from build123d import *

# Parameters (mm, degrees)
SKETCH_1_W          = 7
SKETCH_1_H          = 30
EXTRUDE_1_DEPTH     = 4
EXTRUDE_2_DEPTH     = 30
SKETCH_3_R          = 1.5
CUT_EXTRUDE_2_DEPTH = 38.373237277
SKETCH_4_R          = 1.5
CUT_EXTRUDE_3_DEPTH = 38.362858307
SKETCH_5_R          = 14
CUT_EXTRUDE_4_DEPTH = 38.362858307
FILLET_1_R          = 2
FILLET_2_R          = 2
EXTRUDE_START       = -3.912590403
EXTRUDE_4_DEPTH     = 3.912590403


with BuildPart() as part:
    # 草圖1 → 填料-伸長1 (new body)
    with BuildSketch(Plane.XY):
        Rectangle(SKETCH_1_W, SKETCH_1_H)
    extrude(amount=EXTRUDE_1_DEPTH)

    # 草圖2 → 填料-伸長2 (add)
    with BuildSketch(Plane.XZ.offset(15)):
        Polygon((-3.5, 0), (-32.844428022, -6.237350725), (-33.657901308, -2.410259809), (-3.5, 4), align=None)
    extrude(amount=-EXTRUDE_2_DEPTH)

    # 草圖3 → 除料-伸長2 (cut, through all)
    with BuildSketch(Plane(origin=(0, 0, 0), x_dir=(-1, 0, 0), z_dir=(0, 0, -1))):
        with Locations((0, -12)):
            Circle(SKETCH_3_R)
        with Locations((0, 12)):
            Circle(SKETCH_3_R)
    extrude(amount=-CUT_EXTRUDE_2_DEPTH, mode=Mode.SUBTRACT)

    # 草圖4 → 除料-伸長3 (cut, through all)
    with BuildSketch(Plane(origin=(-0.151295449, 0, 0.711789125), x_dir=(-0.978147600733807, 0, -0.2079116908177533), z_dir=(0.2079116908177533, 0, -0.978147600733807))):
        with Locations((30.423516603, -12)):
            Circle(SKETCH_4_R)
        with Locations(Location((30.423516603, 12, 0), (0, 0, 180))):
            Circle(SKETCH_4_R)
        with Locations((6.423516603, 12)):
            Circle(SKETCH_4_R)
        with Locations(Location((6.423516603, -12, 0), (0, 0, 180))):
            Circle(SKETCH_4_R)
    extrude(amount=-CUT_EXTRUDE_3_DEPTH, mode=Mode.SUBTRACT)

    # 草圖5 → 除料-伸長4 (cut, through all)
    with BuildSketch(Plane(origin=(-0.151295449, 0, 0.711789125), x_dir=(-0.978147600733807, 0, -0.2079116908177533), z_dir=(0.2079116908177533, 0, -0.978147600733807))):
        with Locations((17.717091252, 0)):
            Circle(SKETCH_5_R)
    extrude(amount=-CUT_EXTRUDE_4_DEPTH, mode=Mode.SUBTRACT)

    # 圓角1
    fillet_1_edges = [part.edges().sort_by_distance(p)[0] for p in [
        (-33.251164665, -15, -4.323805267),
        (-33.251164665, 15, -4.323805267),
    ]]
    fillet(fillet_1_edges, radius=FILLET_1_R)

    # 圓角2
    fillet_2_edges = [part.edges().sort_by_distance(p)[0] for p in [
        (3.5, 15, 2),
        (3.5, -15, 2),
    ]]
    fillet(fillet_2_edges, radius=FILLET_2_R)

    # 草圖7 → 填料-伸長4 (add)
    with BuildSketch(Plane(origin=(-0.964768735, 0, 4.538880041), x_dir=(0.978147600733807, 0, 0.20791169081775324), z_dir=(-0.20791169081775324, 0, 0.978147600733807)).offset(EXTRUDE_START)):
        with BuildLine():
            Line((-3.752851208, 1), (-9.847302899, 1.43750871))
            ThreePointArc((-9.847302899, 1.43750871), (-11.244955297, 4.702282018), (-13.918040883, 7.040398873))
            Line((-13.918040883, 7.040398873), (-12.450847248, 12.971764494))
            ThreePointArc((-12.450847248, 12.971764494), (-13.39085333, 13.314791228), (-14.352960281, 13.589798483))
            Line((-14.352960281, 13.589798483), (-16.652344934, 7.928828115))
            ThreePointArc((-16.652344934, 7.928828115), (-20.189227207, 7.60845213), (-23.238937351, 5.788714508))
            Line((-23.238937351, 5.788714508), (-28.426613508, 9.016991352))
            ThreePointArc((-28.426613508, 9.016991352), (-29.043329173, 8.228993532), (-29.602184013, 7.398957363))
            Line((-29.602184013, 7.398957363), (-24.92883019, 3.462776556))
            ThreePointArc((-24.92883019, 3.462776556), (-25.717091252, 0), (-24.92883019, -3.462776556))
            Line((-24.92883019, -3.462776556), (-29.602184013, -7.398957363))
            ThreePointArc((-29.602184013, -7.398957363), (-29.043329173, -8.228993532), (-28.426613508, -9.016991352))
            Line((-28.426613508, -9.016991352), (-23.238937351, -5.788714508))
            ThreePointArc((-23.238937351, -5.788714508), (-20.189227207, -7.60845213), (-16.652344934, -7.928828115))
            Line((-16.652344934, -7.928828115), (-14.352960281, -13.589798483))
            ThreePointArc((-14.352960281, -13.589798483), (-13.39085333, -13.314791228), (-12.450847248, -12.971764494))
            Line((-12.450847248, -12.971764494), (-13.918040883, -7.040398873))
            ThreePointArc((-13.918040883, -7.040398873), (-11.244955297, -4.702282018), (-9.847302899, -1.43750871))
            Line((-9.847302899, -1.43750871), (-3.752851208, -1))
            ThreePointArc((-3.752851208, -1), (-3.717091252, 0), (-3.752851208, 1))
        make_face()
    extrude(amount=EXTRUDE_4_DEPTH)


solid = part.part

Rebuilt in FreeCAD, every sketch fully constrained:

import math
import FreeCAD as App
import Part
import Sketcher
from FreeCAD import Vector
Q = App.Units.Quantity


def edges_at(feature, points):
    """Names of the edges that pass closest to the given points."""
    edges = feature.Shape.Edges
    near = lambda p: min(range(len(edges)), key=lambda i: edges[i].distToShape(Part.Vertex(*p))[0])
    return sorted({f"Edge{near(p) + 1}" for p in points})

doc = App.newDocument("Part")
body = doc.addObject("PartDesign::Body", "Body")

# Sketch on XY plane
sketch1 = body.newObject("Sketcher::SketchObject", "Sketch")
sketch1.AttachmentSupport = (doc.getObject("XY_Plane"), [""])
sketch1.MapMode = "FlatFace"
sketch1.addGeometry([
    Part.LineSegment(Vector(-4, 15, 0), Vector(-4, -15, 0)),
    Part.LineSegment(Vector(-4, -15, 0), Vector(4, -15, 0)),
    Part.LineSegment(Vector(4, -15, 0), Vector(4, 15, 0)),
    Part.LineSegment(Vector(4, 15, 0), Vector(-4, 15, 0)),
], False)
sketch1.addConstraint([
    Sketcher.Constraint("Coincident", 0, 2, 1, 1),
    Sketcher.Constraint("Coincident", 1, 2, 2, 1),
    Sketcher.Constraint("Coincident", 2, 2, 3, 1),
    Sketcher.Constraint("Coincident", 3, 2, 0, 1),
    Sketcher.Constraint("Vertical", 0),
    Sketcher.Constraint("Horizontal", 1),
    Sketcher.Constraint("Vertical", 2),
    Sketcher.Constraint("Horizontal", 3),
    Sketcher.Constraint("Symmetric", 0, 2, 2, 2, -1, 1),
    Sketcher.Constraint("DistanceX", 1, 1, 1, 2, Q("7 mm")),
    Sketcher.Constraint("DistanceY", 0, 2, 0, 1, Q("30 mm")),
])
pad1 = body.newObject("PartDesign::Pad", "Pad")
pad1.Profile = sketch1
pad1.Length = 4

# Sketch on XZ plane
sketch2 = body.newObject("Sketcher::SketchObject", "Sketch001")
sketch2.AttachmentSupport = (doc.getObject("XZ_Plane"), [""])
sketch2.MapMode = "FlatFace"
sketch2.AttachmentOffset = App.Placement(Vector(0, 0, 15), App.Rotation())
sketch2.addGeometry([
    Part.LineSegment(Vector(-32.8, -6.2, 0), Vector(-3.5, 0, 0)),
    Part.LineSegment(Vector(-3.5, 0, 0), Vector(-3.5, 4, 0)),
    Part.LineSegment(Vector(-3.5, 4, 0), Vector(-33.7, -2.4, 0)),
    Part.LineSegment(Vector(-33.7, -2.4, 0), Vector(-32.8, -6.2, 0)),
], False)
sketch2.addConstraint([
    Sketcher.Constraint("Coincident", 0, 2, 1, 1),
    Sketcher.Constraint("Coincident", 1, 2, 2, 1),
    Sketcher.Constraint("Coincident", 2, 2, 3, 1),
    Sketcher.Constraint("Coincident", 3, 2, 0, 1),
    Sketcher.Constraint("Vertical", 1),
    Sketcher.Constraint("PointOnObject", 0, 2, -1),
    Sketcher.Constraint("Parallel", 0, 2),
    Sketcher.Constraint("Perpendicular", 2, 3),
    Sketcher.Constraint("DistanceY", 1, 1, 1, 2, Q("4 mm")),
    Sketcher.Constraint("Angle", 0, Q("12 deg")),
    Sketcher.Constraint("Distance", 0, Q("30 mm")),
    Sketcher.Constraint("DistanceX", 0, 2, -1, 1, Q("3.5 mm")),
])
pad2 = body.newObject("PartDesign::Pad", "Pad001")
pad2.Profile = sketch2
pad2.Length = 30
pad2.Reversed = True

# Sketch on XY plane
sketch3 = body.newObject("Sketcher::SketchObject", "Sketch002")
sketch3.AttachmentSupport = (doc.getObject("XY_Plane"), [""])
sketch3.MapMode = "FlatFace"
sketch3.addGeometry([
    Part.Circle(Vector(0, -12, 0), Vector(0, 0, 1), 1.5),
    Part.Circle(Vector(0, 12, 0), Vector(0, 0, 1), 1.5),
], False)
sketch3.addConstraint([
    Sketcher.Constraint("Equal", 0, 1),
    Sketcher.Constraint("Symmetric", 0, 3, 1, 3, -1, 1),
    Sketcher.Constraint("PointOnObject", 0, 3, -2),
    Sketcher.Constraint("Diameter", 0, Q("3 mm")),
    Sketcher.Constraint("DistanceY", 0, 3, -1, 1, Q("12 mm")),
])
pocket1 = body.newObject("PartDesign::Pocket", "Pocket")
pocket1.Profile = sketch3
pocket1.Type = "ThroughAll"
pocket1.Reversed = True

# Sketch on an angled plane
sketch4 = body.newObject("Sketcher::SketchObject", "Sketch003")
sketch4.Placement = App.Placement(Vector(-0.151295, 0, 0.711789), App.Rotation(Vector(-0.978147601, 0, -0.207911691), Vector(0, 1.000000001, 0), Vector(0.207911691, 0, -0.978147601), "ZXY"))
sketch4.addGeometry([
    Part.Circle(Vector(30.4, -12, 0), Vector(0, 0, 1), 1.5),
    Part.Circle(Vector(30.4, 12, 0), Vector(0, 0, 1), 1.5),
    Part.Circle(Vector(6.4, 12, 0), Vector(0, 0, 1), 1.5),
    Part.Circle(Vector(6.4, -12, 0), Vector(0, 0, 1), 1.5),
], False)
sketch4.addConstraint([
    Sketcher.Constraint("Equal", 0, 1),
    Sketcher.Constraint("Equal", 1, 2),
    Sketcher.Constraint("Equal", 2, 3),
    Sketcher.Constraint("Symmetric", 0, 3, 1, 3, -1),
    Sketcher.Constraint("Symmetric", 2, 3, 3, 3, -1),
    Sketcher.Constraint("Horizontal", 1, 3, 2, 3),
    Sketcher.Constraint("Diameter", 0, Q("3 mm")),
    Sketcher.Constraint("DistanceY", 0, 3, -1, 1, Q("12 mm")),
    Sketcher.Constraint("DistanceX", 2, 3, 1, 3, Q("24 mm")),
    Sketcher.Constraint("DistanceX", -1, 1, 0, 3, Q("30.423517 mm")),
])
pocket2 = body.newObject("PartDesign::Pocket", "Pocket001")
pocket2.Profile = sketch4
pocket2.Type = "ThroughAll"

# Sketch on an angled plane
sketch5 = body.newObject("Sketcher::SketchObject", "Sketch004")
sketch5.Placement = App.Placement(Vector(-0.151295, 0, 0.711789), App.Rotation(Vector(-0.978147601, 0, -0.207911691), Vector(0, 1.000000001, 0), Vector(0.207911691, 0, -0.978147601), "ZXY"))
sketch5.addGeometry(Part.Circle(Vector(18, 0, 0), Vector(0, 0, 1), 14), False)
sketch5.addConstraint([
    Sketcher.Constraint("PointOnObject", 0, 3, -1),
    Sketcher.Constraint("Diameter", 0, Q("28 mm")),
    Sketcher.Constraint("DistanceX", -1, 1, 0, 3, Q("17.717091 mm")),
])
pocket3 = body.newObject("PartDesign::Pocket", "Pocket002")
pocket3.Profile = sketch5
pocket3.Type = "ThroughAll"
doc.recompute()

fillet = body.newObject("PartDesign::Fillet", "Fillet")
fillet.Base = (pocket3, edges_at(pocket3, [(-33.251, -15, -4.324), (-33.251, 15, -4.324)]))
fillet.Radius = 2
doc.recompute()

fillet2 = body.newObject("PartDesign::Fillet", "Fillet001")
fillet2.Base = (fillet, edges_at(fillet, [(3.5, 15, 2), (3.5, -15, 2)]))
fillet2.Radius = 2

# Sketch on an angled plane
sketch6 = body.newObject("Sketcher::SketchObject", "Sketch005")
sketch6.Placement = App.Placement(Vector(-0.151295, 0, 0.711789), App.Rotation(Vector(0.978147601, 0, 0.207911691), Vector(0, 1.000000001, 0), Vector(-0.207911691, 0, 0.978147601), "ZXY"))
sketch6.addGeometry([
    Part.LineSegment(Vector(-3.8, 1, 0), Vector(-9.8, 1.4, 0)),  # 0
    Part.ArcOfCircle(Part.Circle(Vector(-17.7, 0, 0), Vector(0, 0, 1), 8), math.radians(10), math.radians(62)),  # 1
    Part.LineSegment(Vector(-13.9, 7, 0), Vector(-12.5, 13, 0)),  # 2
    Part.ArcOfCircle(Part.Circle(Vector(-17.7, 0, 0), Vector(0, 0, 1), 14), math.radians(67.9), math.radians(76.1)),  # 3
    Part.LineSegment(Vector(-14.4, 13.6, 0), Vector(-16.7, 7.9, 0)),  # 4
    Part.ArcOfCircle(Part.Circle(Vector(-17.7, 0, 0), Vector(0, 0, 1), 8), math.radians(82), math.radians(134)),  # 5
    Part.LineSegment(Vector(-23.2, 5.8, 0), Vector(-28.4, 9, 0)),  # 6
    Part.ArcOfCircle(Part.Circle(Vector(-17.7, 0, 0), Vector(0, 0, 1), 14), math.radians(139.9), math.radians(148.1)),  # 7
    Part.LineSegment(Vector(-29.6, 7.4, 0), Vector(-24.9, 3.5, 0)),  # 8
    Part.ArcOfCircle(Part.Circle(Vector(-17.7, 0, 0), Vector(0, 0, 1), 8), math.radians(154), math.radians(206)),  # 9
    Part.LineSegment(Vector(-24.9, -3.5, 0), Vector(-29.6, -7.4, 0)),  # 10
    Part.ArcOfCircle(Part.Circle(Vector(-17.7, 0, 0), Vector(0, 0, 1), 14), math.radians(-148.1), math.radians(-139.9)),  # 11
    Part.LineSegment(Vector(-28.4, -9, 0), Vector(-23.2, -5.8, 0)),  # 12
    Part.ArcOfCircle(Part.Circle(Vector(-17.7, 0, 0), Vector(0, 0, 1), 8), math.radians(-134), math.radians(-82)),  # 13
    Part.LineSegment(Vector(-16.7, -7.9, 0), Vector(-14.4, -13.6, 0)),  # 14
    Part.ArcOfCircle(Part.Circle(Vector(-17.7, 0, 0), Vector(0, 0, 1), 14), math.radians(-76.1), math.radians(-67.9)),  # 15
    Part.LineSegment(Vector(-12.5, -13, 0), Vector(-13.9, -7, 0)),  # 16
    Part.ArcOfCircle(Part.Circle(Vector(-17.7, 0, 0), Vector(0, 0, 1), 8), math.radians(-62), math.radians(-10)),  # 17
    Part.LineSegment(Vector(-9.8, -1.4, 0), Vector(-3.8, -1, 0)),  # 18
    Part.ArcOfCircle(Part.Circle(Vector(-17.7, 0, 0), Vector(0, 0, 1), 14), math.radians(-4.1), math.radians(4.1)),  # 19
], False)
sketch6.addConstraint([
    Sketcher.Constraint("Coincident", 0, 2, 1, 1),
    Sketcher.Constraint("Coincident", 1, 2, 2, 1),
    Sketcher.Constraint("Coincident", 2, 2, 3, 1),
    Sketcher.Constraint("Coincident", 3, 2, 4, 1),
    Sketcher.Constraint("Coincident", 4, 2, 5, 1),
    Sketcher.Constraint("Coincident", 5, 2, 6, 1),
    Sketcher.Constraint("Coincident", 6, 2, 7, 1),
    Sketcher.Constraint("Coincident", 7, 2, 8, 1),
    Sketcher.Constraint("Coincident", 8, 2, 9, 1),
    Sketcher.Constraint("Coincident", 9, 2, 10, 1),
    Sketcher.Constraint("Coincident", 10, 2, 11, 1),
    Sketcher.Constraint("Coincident", 11, 2, 12, 1),
    Sketcher.Constraint("Coincident", 12, 2, 13, 1),
    Sketcher.Constraint("Coincident", 13, 2, 14, 1),
    Sketcher.Constraint("Coincident", 14, 2, 15, 1),
    Sketcher.Constraint("Coincident", 15, 2, 16, 1),
    Sketcher.Constraint("Coincident", 16, 2, 17, 1),
    Sketcher.Constraint("Coincident", 17, 2, 18, 1),
    Sketcher.Constraint("Coincident", 18, 2, 19, 1),
    Sketcher.Constraint("Coincident", 19, 2, 0, 1),
    Sketcher.Constraint("Coincident", 3, 3, 1, 3),
    Sketcher.Constraint("Coincident", 5, 3, 1, 3),
    Sketcher.Constraint("Coincident", 7, 3, 1, 3),
    Sketcher.Constraint("Coincident", 9, 3, 1, 3),
    Sketcher.Constraint("Coincident", 11, 3, 1, 3),
    Sketcher.Constraint("Coincident", 13, 3, 1, 3),
    Sketcher.Constraint("Coincident", 15, 3, 1, 3),
    Sketcher.Constraint("Coincident", 17, 3, 1, 3),
    Sketcher.Constraint("Coincident", 19, 3, 1, 3),
    Sketcher.Constraint("Equal", 1, 5),
    Sketcher.Constraint("Equal", 3, 7),
    Sketcher.Constraint("Equal", 5, 9),
    Sketcher.Constraint("Equal", 7, 11),
    Sketcher.Constraint("Equal", 9, 13),
    Sketcher.Constraint("Equal", 11, 15),
    Sketcher.Constraint("Equal", 13, 17),
    Sketcher.Constraint("Equal", 15, 19),
    Sketcher.Constraint("Symmetric", 8, 2, 9, 2, -1),
    Sketcher.Constraint("Vertical", 7, 2, 10, 2),
    Sketcher.Constraint("Vertical", 6, 2, 11, 2),
    Sketcher.Constraint("Vertical", 5, 2, 12, 2),
    Sketcher.Constraint("Vertical", 4, 2, 13, 2),
    Sketcher.Constraint("Vertical", 3, 2, 14, 2),
    Sketcher.Constraint("Vertical", 2, 2, 15, 2),
    Sketcher.Constraint("Vertical", 1, 2, 16, 2),
    Sketcher.Constraint("Vertical", 0, 2, 17, 2),
    Sketcher.Constraint("Vertical", 18, 2, 19, 2),
    Sketcher.Constraint("Equal", 0, 2),
    Sketcher.Constraint("Equal", 2, 4),
    Sketcher.Constraint("Equal", 4, 6),
    Sketcher.Constraint("Equal", 6, 8),
    Sketcher.Constraint("Radius", 1, Q("8 mm")),
    Sketcher.Constraint("Radius", 3, Q("14 mm")),
    Sketcher.Constraint("DistanceY", 18, 2, -1, 1, Q("1 mm")),
    Sketcher.Constraint("DistanceY", -1, 1, 1, 2, Q("7.040399 mm")),
    Sketcher.Constraint("DistanceY", -1, 1, 3, 2, Q("13.589798 mm")),
    Sketcher.Constraint("DistanceX", 1, 3, -1, 1, Q("17.717091 mm")),
    Sketcher.Constraint("DistanceY", -1, 1, 0, 2, Q("1.437509 mm")),
    Sketcher.Constraint("DistanceY", -1, 1, 6, 2, Q("9.016991 mm")),
    Sketcher.Constraint("DistanceX", 8, 2, -1, 1, Q("24.92883 mm")),
])
pad3 = body.newObject("PartDesign::Pad", "Pad002")
pad3.Profile = sketch6
pad3.Length = 3.91259

doc.recompute()
